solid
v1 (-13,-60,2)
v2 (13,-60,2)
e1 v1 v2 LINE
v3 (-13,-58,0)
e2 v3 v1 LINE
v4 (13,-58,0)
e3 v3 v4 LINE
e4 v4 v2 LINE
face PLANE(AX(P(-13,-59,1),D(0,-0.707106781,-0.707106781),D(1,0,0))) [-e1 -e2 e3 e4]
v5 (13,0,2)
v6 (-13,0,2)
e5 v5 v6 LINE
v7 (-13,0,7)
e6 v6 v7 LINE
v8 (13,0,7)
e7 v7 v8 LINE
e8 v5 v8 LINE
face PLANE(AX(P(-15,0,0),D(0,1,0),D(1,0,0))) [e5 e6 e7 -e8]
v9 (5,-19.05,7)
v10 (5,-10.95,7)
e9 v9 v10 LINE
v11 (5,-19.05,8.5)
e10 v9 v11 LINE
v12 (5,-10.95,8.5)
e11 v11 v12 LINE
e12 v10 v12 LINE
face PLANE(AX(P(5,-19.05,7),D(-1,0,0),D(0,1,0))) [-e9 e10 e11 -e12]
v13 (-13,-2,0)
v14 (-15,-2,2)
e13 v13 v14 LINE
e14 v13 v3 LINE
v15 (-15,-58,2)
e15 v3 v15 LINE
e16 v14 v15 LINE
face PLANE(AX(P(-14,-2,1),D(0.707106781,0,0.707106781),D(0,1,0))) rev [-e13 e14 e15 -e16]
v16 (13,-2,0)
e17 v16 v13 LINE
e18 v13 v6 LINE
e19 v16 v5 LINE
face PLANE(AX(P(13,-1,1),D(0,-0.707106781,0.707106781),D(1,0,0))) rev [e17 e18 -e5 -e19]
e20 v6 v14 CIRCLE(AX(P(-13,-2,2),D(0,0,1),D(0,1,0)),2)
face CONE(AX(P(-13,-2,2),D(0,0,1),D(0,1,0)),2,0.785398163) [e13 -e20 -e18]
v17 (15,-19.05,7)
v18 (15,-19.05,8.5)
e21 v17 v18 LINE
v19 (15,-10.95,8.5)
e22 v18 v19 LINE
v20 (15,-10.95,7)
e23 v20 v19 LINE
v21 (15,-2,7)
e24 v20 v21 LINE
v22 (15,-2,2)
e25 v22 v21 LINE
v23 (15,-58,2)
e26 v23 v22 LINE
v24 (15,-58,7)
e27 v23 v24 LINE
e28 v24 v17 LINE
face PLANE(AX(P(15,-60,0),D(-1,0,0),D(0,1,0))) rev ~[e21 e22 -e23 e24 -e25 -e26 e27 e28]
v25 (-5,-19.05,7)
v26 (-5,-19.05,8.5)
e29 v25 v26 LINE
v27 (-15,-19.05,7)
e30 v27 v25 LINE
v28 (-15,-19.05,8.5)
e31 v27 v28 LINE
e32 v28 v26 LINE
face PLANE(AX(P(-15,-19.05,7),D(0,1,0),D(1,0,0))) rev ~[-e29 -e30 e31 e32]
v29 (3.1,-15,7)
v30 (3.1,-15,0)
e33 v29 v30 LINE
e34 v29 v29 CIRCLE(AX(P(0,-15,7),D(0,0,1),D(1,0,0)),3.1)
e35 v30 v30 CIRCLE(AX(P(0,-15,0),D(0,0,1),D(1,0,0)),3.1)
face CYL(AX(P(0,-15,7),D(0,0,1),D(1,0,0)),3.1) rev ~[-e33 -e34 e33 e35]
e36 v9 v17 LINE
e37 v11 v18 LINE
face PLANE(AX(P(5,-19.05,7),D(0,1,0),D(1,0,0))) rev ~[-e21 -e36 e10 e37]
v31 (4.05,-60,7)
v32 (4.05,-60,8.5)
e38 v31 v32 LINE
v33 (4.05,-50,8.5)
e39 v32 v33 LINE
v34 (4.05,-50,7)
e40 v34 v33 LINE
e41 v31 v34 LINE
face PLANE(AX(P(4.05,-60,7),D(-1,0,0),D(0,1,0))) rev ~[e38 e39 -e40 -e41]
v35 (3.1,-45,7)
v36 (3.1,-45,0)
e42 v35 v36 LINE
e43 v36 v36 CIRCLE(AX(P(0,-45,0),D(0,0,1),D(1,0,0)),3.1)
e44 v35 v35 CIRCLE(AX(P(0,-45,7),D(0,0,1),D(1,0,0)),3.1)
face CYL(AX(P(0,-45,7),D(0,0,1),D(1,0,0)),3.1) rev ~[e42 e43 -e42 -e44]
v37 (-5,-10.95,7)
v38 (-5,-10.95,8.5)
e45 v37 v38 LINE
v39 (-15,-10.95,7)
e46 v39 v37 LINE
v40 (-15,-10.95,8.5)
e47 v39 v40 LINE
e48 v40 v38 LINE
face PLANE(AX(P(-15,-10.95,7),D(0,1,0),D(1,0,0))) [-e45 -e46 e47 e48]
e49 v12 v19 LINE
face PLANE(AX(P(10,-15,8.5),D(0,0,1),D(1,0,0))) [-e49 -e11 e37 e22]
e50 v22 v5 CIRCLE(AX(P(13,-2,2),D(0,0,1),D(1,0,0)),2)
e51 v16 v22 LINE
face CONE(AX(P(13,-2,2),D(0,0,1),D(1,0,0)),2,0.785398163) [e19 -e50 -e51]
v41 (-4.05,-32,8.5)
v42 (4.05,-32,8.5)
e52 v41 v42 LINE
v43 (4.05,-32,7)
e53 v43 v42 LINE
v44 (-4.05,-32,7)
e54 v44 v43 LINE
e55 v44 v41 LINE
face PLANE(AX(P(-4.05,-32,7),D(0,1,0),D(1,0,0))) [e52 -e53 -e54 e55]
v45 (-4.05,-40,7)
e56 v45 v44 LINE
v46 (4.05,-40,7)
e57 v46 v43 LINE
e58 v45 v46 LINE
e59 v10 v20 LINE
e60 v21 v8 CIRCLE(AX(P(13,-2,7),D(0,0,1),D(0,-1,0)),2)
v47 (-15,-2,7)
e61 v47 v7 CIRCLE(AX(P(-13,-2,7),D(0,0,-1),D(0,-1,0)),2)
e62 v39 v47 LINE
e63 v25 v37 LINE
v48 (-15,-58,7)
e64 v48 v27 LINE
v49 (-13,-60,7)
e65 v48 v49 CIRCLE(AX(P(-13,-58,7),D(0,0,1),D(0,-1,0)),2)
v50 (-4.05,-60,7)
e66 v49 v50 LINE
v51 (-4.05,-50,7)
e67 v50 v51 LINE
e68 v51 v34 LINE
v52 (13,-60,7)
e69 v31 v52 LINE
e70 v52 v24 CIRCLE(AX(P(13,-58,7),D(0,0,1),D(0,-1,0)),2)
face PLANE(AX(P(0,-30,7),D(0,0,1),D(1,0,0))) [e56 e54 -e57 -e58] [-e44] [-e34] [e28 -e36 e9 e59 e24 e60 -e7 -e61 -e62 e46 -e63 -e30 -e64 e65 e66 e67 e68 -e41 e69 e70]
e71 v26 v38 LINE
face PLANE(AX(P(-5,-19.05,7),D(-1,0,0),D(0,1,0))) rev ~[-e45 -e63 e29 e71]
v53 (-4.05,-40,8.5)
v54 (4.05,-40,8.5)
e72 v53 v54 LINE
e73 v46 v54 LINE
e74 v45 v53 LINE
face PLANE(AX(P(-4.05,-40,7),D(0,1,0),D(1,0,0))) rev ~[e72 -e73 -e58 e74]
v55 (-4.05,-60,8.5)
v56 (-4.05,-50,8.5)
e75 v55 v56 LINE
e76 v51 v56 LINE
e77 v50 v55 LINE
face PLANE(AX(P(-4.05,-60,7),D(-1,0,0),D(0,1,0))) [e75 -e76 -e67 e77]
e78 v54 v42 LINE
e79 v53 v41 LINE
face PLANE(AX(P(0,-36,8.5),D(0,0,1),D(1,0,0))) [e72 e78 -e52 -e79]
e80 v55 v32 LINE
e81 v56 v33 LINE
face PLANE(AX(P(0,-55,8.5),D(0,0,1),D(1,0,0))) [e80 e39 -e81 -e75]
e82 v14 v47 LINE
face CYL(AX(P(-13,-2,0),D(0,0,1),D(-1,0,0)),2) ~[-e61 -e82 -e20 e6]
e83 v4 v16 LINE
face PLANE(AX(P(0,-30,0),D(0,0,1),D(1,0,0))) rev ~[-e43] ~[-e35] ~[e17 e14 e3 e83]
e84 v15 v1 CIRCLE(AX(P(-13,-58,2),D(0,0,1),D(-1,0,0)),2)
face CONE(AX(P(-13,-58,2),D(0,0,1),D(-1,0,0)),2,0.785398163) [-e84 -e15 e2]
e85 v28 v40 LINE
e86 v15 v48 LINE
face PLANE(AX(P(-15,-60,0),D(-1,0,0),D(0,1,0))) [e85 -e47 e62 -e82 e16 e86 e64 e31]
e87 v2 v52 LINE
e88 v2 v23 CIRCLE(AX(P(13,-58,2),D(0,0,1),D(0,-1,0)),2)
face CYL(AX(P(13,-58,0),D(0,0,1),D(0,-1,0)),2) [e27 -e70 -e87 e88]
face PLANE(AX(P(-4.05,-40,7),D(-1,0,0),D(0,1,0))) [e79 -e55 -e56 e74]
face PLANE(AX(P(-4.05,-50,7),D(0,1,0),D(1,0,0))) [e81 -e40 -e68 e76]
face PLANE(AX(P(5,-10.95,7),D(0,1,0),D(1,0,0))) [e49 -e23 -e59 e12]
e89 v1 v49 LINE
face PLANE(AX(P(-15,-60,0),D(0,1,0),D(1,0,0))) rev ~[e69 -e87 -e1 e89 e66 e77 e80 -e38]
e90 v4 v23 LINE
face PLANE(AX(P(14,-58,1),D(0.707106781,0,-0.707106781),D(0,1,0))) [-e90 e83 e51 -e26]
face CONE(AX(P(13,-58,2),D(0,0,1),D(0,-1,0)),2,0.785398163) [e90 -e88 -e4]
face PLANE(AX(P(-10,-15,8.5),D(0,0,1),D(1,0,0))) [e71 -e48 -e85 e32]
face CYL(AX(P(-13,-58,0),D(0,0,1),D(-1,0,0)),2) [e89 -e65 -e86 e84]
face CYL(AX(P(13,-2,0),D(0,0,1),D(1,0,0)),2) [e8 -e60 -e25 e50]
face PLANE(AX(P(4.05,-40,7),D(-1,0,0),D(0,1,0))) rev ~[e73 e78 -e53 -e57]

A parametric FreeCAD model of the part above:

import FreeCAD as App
import Part
import Sketcher

V = App.Vector


def edges_at(feature, points):
    """Names of the edges that pass closest to the given points."""
    edges = feature.Shape.Edges
    near = lambda p: min(range(len(edges)), key=lambda i: edges[i].distToShape(Part.Vertex(*p))[0])
    return sorted({f"Edge{near(p) + 1}" for p in points})

doc = App.newDocument("Part")
body = doc.addObject("PartDesign::Body", "Body")

sketch1 = body.newObject("Sketcher::SketchObject", "Sketch")
sketch1.AttachmentSupport = (doc.getObject("XY_Plane"), [""])
sketch1.MapMode = "FlatFace"
sketch1.addGeometry([
    Part.LineSegment(V(-15, 0, 0), V(-15, -60, 0)),
    Part.LineSegment(V(-15, -60, 0), V(15, -60, 0)),
    Part.LineSegment(V(15, -60, 0), V(15, 0, 0)),
    Part.LineSegment(V(15, 0, 0), V(-15, 0, 0)),
], False)
sketch1.addConstraint([
    Sketcher.Constraint("Coincident", 0, 2, 1, 1),
    Sketcher.Constraint("Coincident", 1, 2, 2, 1),
    Sketcher.Constraint("Coincident", 2, 2, 3, 1),
    Sketcher.Constraint("Coincident", 3, 2, 0, 1),
    Sketcher.Constraint("Vertical", 0),
    Sketcher.Constraint("Horizontal", 1),
    Sketcher.Constraint("Vertical", 2),
    Sketcher.Constraint("Horizontal", 3),
    Sketcher.Constraint("Symmetric", 2, 2, 3, 2, -1, 1),
    Sketcher.Constraint("DistanceX", 1, 1, 1, 2, 30.0),
    Sketcher.Constraint("DistanceY", 0, 2, 0, 1, 60.0),
])
pad1 = body.newObject("PartDesign::Pad", "Pad")
pad1.Profile = sketch1
pad1.Length = 7
doc.recompute()

fillet = body.newObject("PartDesign::Fillet", "Fillet")
fillet.Base = (pad1, edges_at(pad1, [
    (15, -60, 3.5),
    (15, 0, 3.5),
    (-15, 0, 3.5),
    (-15, -60, 3.5),
]))
fillet.Radius = 2
doc.recompute()

chamfer = body.newObject("PartDesign::Chamfer", "Chamfer")
chamfer.Base = (fillet, edges_at(fillet, [
    (15, -30, 0),
    (0, -60, 0),
    (-15, -30, 0),
    (0, 0, 0),
]))
chamfer.Size = 2

sketch2 = body.newObject("Sketcher::SketchObject", "Sketch001")
sketch2.AttachmentSupport = (doc.getObject("XY_Plane"), [""])
sketch2.MapMode = "FlatFace"
sketch2.AttachmentOffset = App.Placement(V(0, 0, 7), App.Rotation())
sketch2.addGeometry([
    Part.Circle(V(0, -15, 0), V(0, 0, 1), 3.1),
    Part.Circle(V(0, -45, 0), V(0, 0, 1), 3.1),
], False)
sketch2.addConstraint([
    Sketcher.Constraint("Equal", 0, 1),
    Sketcher.Constraint("PointOnObject", 0, 3, -2),
    Sketcher.Constraint("PointOnObject", 1, 3, -2),
    Sketcher.Constraint("Diameter", 0, 6.2),
    Sketcher.Constraint("DistanceY", 0, 3, -1, 1, 15.0),
    Sketcher.Constraint("DistanceY", 1, 3, -1, 1, 45.0),
])
pocket1 = body.newObject("PartDesign::Pocket", "Pocket")
pocket1.Profile = sketch2
pocket1.Type = "ThroughAll"

sketch3 = body.newObject("Sketcher::SketchObject", "Sketch002")
sketch3.AttachmentSupport = (doc.getObject("XY_Plane"), [""])
sketch3.MapMode = "FlatFace"
sketch3.AttachmentOffset = App.Placement(V(0, 0, 7), App.Rotation())
sketch3.addGeometry([
    Part.LineSegment(V(-15, -11, 0), V(-15, -19, 0)),
    Part.LineSegment(V(-15, -19, 0), V(-5, -19, 0)),
    Part.LineSegment(V(-5, -19, 0), V(-5, -11, 0)),
    Part.LineSegment(V(-5, -11, 0), V(-15, -11, 0)),
    Part.LineSegment(V(5, -11, 0), V(5, -19, 0)),
    Part.LineSegment(V(5, -19, 0), V(15, -19, 0)),
    Part.LineSegment(V(15, -19, 0), V(15, -11, 0)),
    Part.LineSegment(V(15, -11, 0), V(5, -11, 0)),
    Part.LineSegment(V(-4, -50, 0), V(-4, -60, 0)),
    Part.LineSegment(V(-4, -60, 0), V(4, -60, 0)),
    Part.LineSegment(V(4, -60, 0), V(4, -50, 0)),
    Part.LineSegment(V(4, -50, 0), V(-4, -50, 0)),
    Part.LineSegment(V(-4, -32, 0), V(-4, -40, 0)),
    Part.LineSegment(V(-4, -40, 0), V(4, -40, 0)),
    Part.LineSegment(V(4, -40, 0), V(4, -32, 0)),
    Part.LineSegment(V(4, -32, 0), V(-4, -32, 0)),
], False)
sketch3.addConstraint([
    Sketcher.Constraint("Coincident", 0, 2, 1, 1),
    Sketcher.Constraint("Coincident", 1, 2, 2, 1),
    Sketcher.Constraint("Coincident", 2, 2, 3, 1),
    Sketcher.Constraint("Coincident", 3, 2, 0, 1),
    Sketcher.Constraint("Coincident", 4, 2, 5, 1),
    Sketcher.Constraint("Coincident", 5, 2, 6, 1),
    Sketcher.Constraint("Coincident", 6, 2, 7, 1),
    Sketcher.Constraint("Coincident", 7, 2, 4, 1),
    Sketcher.Constraint("Coincident", 8, 2, 9, 1),
    Sketcher.Constraint("Coincident", 9, 2, 10, 1),
    Sketcher.Constraint("Coincident", 10, 2, 11, 1),
    Sketcher.Constraint("Coincident", 11, 2, 8, 1),
    Sketcher.Constraint("Coincident", 12, 2, 13, 1),
    Sketcher.Constraint("Coincident", 13, 2, 14, 1),
    Sketcher.Constraint("Coincident", 14, 2, 15, 1),
    Sketcher.Constraint("Coincident", 15, 2, 12, 1),
    Sketcher.Constraint("Vertical", 0),
    Sketcher.Constraint("Horizontal", 1),
    Sketcher.Constraint("Vertical", 2),
    Sketcher.Constraint("Horizontal", 3),
    Sketcher.Constraint("Vertical", 4),
    Sketcher.Constraint("Horizontal", 5),
    Sketcher.Constraint("Vertical", 6),
    Sketcher.Constraint("Horizontal", 7),
    Sketcher.Constraint("Vertical", 8),
    Sketcher.Constraint("Horizontal", 9),
    Sketcher.Constraint("Vertical", 10),
    Sketcher.Constraint("Horizontal", 11),
    Sketcher.Constraint("Vertical", 12),
    Sketcher.Constraint("Horizontal", 13),
    Sketcher.Constraint("Vertical", 14),
    Sketcher.Constraint("Horizontal", 15),
    Sketcher.Constraint("Symmetric", 1, 2, 4, 2, -2),
    Sketcher.Constraint("Symmetric", 3, 2, 6, 2, -2),
    Sketcher.Constraint("Vertical", 11, 2, 12, 2),
    Sketcher.Constraint("Vertical", 10, 2, 13, 2),
    Sketcher.Constraint("Equal", 15, 0),
    Sketcher.Constraint("Equal", 7, 8),
    Sketcher.Constraint("DistanceX", 1, 1, 1, 2, 10.0),
    Sketcher.Constraint("DistanceY", 12, 2, 12, 1, 8.0),
    Sketcher.Constraint("DistanceX", 9, 1, 9, 2, 8.1),
    Sketcher.Constraint("DistanceX", 0, 2, -1, 1, 15.0),
    Sketcher.Constraint("DistanceY", 8, 2, -1, 1, 60.0),
    Sketcher.Constraint("DistanceY", 12, 2, -1, 1, 40.0),
    Sketcher.Constraint("DistanceY", 0, 2, -1, 1, 19.05),
    Sketcher.Constraint("DistanceX", 8, 2, -1, 1, 4.05),
])
pad2 = body.newObject("PartDesign::Pad", "Pad001")
pad2.Profile = sketch3
pad2.Length = 1.5

doc.recompute()
